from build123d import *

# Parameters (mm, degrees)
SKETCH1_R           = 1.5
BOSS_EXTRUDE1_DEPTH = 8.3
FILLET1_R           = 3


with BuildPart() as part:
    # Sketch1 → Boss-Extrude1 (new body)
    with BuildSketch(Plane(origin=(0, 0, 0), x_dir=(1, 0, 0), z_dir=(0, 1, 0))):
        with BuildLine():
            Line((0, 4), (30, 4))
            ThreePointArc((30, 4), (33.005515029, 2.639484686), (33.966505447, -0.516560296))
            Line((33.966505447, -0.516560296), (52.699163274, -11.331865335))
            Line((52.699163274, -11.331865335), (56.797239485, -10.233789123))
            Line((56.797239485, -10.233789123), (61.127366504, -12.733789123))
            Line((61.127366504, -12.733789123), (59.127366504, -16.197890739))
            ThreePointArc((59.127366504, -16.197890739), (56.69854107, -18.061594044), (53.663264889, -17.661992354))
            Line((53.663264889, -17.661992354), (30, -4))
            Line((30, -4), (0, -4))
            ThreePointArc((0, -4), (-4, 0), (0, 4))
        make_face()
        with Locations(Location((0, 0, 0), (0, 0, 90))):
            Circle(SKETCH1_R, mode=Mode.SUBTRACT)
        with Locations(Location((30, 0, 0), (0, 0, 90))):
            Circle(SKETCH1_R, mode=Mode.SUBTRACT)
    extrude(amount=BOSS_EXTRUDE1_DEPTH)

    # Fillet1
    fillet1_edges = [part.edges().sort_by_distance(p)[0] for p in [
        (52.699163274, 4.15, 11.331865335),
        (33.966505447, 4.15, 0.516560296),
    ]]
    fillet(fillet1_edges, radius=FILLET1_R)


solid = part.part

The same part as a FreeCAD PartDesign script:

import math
import FreeCAD as App
import Part
import Sketcher
Q = App.Units.Quantity


def edges_at(feature, points):
    """Names of the edges that pass closest to the given points."""
    edges = feature.Shape.Edges
    near = lambda p: min(range(len(edges)), key=lambda i: edges[i].distToShape(Part.Vertex(*p))[0])
    return sorted({f"Edge{near(p) + 1}" for p in points})

doc = App.newDocument("Part")
body = doc.addObject("PartDesign::Body", "Body")

# Sketch on XZ plane
sketch1 = doc.addObject("Sketcher::SketchObject", "Sketch")
body.addObject(sketch1)
sketch1.AttachmentSupport = (doc.XZ_Plane, [""])
sketch1.MapMode = "FlatFace"
sketch1.addGeometry([
    Part.LineSegment(App.Vector(30, -4, 0), App.Vector(0, -4, 0)),  # 0
    Part.ArcOfCircle(Part.Circle(App.Vector(0, 0, 0), App.Vector(0, 0, 1), 4), math.radians(90), math.radians(270)),  # 1
    Part.LineSegment(App.Vector(0, 4, 0), App.Vector(30, 4, 0)),  # 2
    Part.LineSegment(App.Vector(30, 4, 0), App.Vector(53.663265, 17.661992, 0)),  # 3
    Part.ArcOfCircle(Part.Circle(App.Vector(55.663265, 14.197891, 0), App.Vector(0, 0, 1), 4), math.radians(30), math.radians(120)),  # 4
    Part.LineSegment(App.Vector(59.127367, 16.197891, 0), App.Vector(61.127367, 12.733789, 0)),  # 5
    Part.LineSegment(App.Vector(61.127367, 12.733789, 0), App.Vector(56.797239, 10.233789, 0)),  # 6
    Part.LineSegment(App.Vector(56.797239, 10.233789, 0), App.Vector(52.699163, 11.331865, 0)),  # 7
    Part.LineSegment(App.Vector(52.699163, 11.331865, 0), App.Vector(33.966505, 0.51656, 0)),  # 8
    Part.ArcOfCircle(Part.Circle(App.Vector(30, 0, 0), App.Vector(0, 0, 1), 4), math.radians(-90), math.radians(7.419903)),  # 9
    Part.Circle(App.Vector(30, 0, 0), App.Vector(0, 0, 1), 1.5),  # 10
    Part.Circle(App.Vector(0, 0, 0), App.Vector(0, 0, 1), 1.5),  # 11
], False)
sketch1.addConstraint([
    Sketcher.Constraint("Tangent", 0, 2, 1, 2),
    Sketcher.Constraint("Tangent", 1, 1, 2, 1),
    Sketcher.Constraint("Coincident", 2, 2, 3, 1),
    Sketcher.Constraint("Tangent", 3, 2, 4, 2),
    Sketcher.Constraint("Tangent", 4, 1, 5, 1),
    Sketcher.Constraint("Coincident", 5, 2, 6, 1),
    Sketcher.Constraint("Coincident", 6, 2, 7, 1),
    Sketcher.Constraint("Coincident", 7, 2, 8, 1),
    Sketcher.Constraint("Coincident", 8, 2, 9, 2),
    Sketcher.Constraint("Tangent", 9, 1, 0, 1),
    Sketcher.Constraint("Horizontal", 0),
    Sketcher.Constraint("Horizontal", 2),
    Sketcher.Constraint("Coincident", 1, 3, -1, 1),
    Sketcher.Constraint("Coincident", 11, 3, -1, 1),
    Sketcher.Constraint("Coincident", 10, 3, 9, 3),
    Sketcher.Constraint("Equal", 1, 4),
    Sketcher.Constraint("Equal", 4, 9),
    Sketcher.Constraint("Equal", 10, 11),
    Sketcher.Constraint("Perpendicular", 3, 5),
    Sketcher.Constraint("Perpendicular", 5, 6),
    Sketcher.Constraint("Parallel", 6, 8),
    Sketcher.Constraint("Vertical", 10, 3, 2, 2),
    Sketcher.Constraint("Diameter", 10, Q("3 mm")),
    Sketcher.Constraint("Radius", 1, Q("4 mm")),
    Sketcher.Constraint("DistanceX", 0, 2, 0, 1, Q("30 mm")),
    Sketcher.Constraint("Angle", 3, Q("30 deg")),
    Sketcher.Constraint("Angle", 7, Q("165 deg")),
    Sketcher.Constraint("Distance", 5, Q("4 mm")),
    Sketcher.Constraint("Distance", 6, Q("5 mm")),
    Sketcher.Constraint("DistanceX", 7, 2, 4, 3, Q("2.964102 mm")),
    Sketcher.Constraint("Distance", 8, Q("21.63061 mm")),
])
pad1 = doc.addObject("PartDesign::Pad", "Pad")
body.addObject(pad1)
pad1.Profile = sketch1
pad1.Length = 8.3
pad1.Reversed = True
doc.recompute()

fillet = doc.addObject("PartDesign::Fillet", "Fillet")
body.addObject(fillet)
fillet.Base = (pad1, edges_at(pad1, [(52.699, 4.15, 11.332), (33.967, 4.15, 0.517)]))
fillet.Radius = 3

doc.recompute()
